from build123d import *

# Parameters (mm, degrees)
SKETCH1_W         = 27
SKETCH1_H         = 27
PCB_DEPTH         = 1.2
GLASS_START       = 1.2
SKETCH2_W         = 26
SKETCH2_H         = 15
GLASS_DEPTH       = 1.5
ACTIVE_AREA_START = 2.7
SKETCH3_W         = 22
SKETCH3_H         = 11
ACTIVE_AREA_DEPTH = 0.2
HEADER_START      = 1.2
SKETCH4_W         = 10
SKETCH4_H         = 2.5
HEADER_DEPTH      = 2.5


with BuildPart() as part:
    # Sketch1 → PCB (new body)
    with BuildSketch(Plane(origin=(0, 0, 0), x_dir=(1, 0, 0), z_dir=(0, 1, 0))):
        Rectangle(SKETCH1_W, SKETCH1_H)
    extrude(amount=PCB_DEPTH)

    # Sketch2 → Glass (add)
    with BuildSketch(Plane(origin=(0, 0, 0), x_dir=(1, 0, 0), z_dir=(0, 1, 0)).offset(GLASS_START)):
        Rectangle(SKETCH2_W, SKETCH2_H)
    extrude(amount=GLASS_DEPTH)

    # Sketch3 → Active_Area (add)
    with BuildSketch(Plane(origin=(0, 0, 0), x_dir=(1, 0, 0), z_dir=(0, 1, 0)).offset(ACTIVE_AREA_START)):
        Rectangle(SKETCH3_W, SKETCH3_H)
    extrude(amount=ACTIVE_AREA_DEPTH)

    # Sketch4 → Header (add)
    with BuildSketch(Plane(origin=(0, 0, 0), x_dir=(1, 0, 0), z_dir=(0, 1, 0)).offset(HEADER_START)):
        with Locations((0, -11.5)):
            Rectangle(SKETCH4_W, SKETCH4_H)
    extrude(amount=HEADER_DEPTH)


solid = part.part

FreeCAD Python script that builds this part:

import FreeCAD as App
import Part
import Sketcher

V = App.Vector
Q = App.Units.Quantity

doc = App.newDocument("Part")
body = doc.addObject("PartDesign::Body", "Body")

sketch1 = body.newObject("Sketcher::SketchObject", "Sketch")
sketch1.AttachmentSupport = (doc.getObject("XZ_Plane"), [""])
sketch1.MapMode = "FlatFace"
sketch1.addGeometry(Part.LineSegment(V(-14, -14, 0), V(-14, 14, 0)), False)
sketch1.addGeometry(Part.LineSegment(V(-14, 14, 0), V(14, 14, 0)), False)
sketch1.addGeometry(Part.LineSegment(V(14, 14, 0), V(14, -14, 0)), False)
sketch1.addGeometry(Part.LineSegment(V(14, -14, 0), V(-14, -14, 0)), False)
sketch1.addConstraint(Sketcher.Constraint("Coincident", 0, 2, 1, 1))
sketch1.addConstraint(Sketcher.Constraint("Coincident", 1, 2, 2, 1))
sketch1.addConstraint(Sketcher.Constraint("Coincident", 2, 2, 3, 1))
sketch1.addConstraint(Sketcher.Constraint("Coincident", 3, 2, 0, 1))
sketch1.addConstraint(Sketcher.Constraint("Vertical", 0))
sketch1.addConstraint(Sketcher.Constraint("Horizontal", 1))
sketch1.addConstraint(Sketcher.Constraint("Vertical", 2))
sketch1.addConstraint(Sketcher.Constraint("Horizontal", 3))
sketch1.addConstraint(Sketcher.Constraint("Symmetric", 0, 2, 2, 2, -1, 1))
sketch1.addConstraint(Sketcher.Constraint("Equal", 3, 0))
sketch1.addConstraint(Sketcher.Constraint("DistanceX", 1, 1, 1, 2, Q("27 mm")))
pad1 = body.newObject("PartDesign::Pad", "Pad")
pad1.Profile = sketch1
pad1.Length = 1.2
pad1.Reversed = True

sketch2 = body.newObject("Sketcher::SketchObject", "Sketch001")
sketch2.AttachmentSupport = (doc.getObject("XZ_Plane"), [""])
sketch2.MapMode = "FlatFace"
sketch2.AttachmentOffset = App.Placement(V(0, 0, -1.2), App.Rotation())
sketch2.addGeometry(Part.LineSegment(V(-13, -8, 0), V(-13, 8, 0)), False)
sketch2.addGeometry(Part.LineSegment(V(-13, 8, 0), V(13, 8, 0)), False)
sketch2.addGeometry(Part.LineSegment(V(13, 8, 0), V(13, -8, 0)), False)
sketch2.addGeometry(Part.LineSegment(V(13, -8, 0), V(-13, -8, 0)), False)
sketch2.addConstraint(Sketcher.Constraint("Coincident", 0, 2, 1, 1))
sketch2.addConstraint(Sketcher.Constraint("Coincident", 1, 2, 2, 1))
sketch2.addConstraint(Sketcher.Constraint("Coincident", 2, 2, 3, 1))
sketch2.addConstraint(Sketcher.Constraint("Coincident", 3, 2, 0, 1))
sketch2.addConstraint(Sketcher.Constraint("Vertical", 0))
sketch2.addConstraint(Sketcher.Constraint("Horizontal", 1))
sketch2.addConstraint(Sketcher.Constraint("Vertical", 2))
sketch2.addConstraint(Sketcher.Constraint("Horizontal", 3))
sketch2.addConstraint(Sketcher.Constraint("Symmetric", 0, 2, 2, 2, -1, 1))
sketch2.addConstraint(Sketcher.Constraint("DistanceX", 1, 1, 1, 2, Q("26 mm")))
sketch2.addConstraint(Sketcher.Constraint("DistanceY", 0, 1, 0, 2, Q("15 mm")))
pad2 = body.newObject("PartDesign::Pad", "Pad001")
pad2.Profile = sketch2
pad2.Length = 1.5
pad2.Reversed = True

sketch3 = body.newObject("Sketcher::SketchObject", "Sketch002")
sketch3.AttachmentSupport = (doc.getObject("XZ_Plane"), [""])
sketch3.MapMode = "FlatFace"
sketch3.AttachmentOffset = App.Placement(V(0, 0, -2.7), App.Rotation())
sketch3.addGeometry(Part.LineSegment(V(-11, -6, 0), V(-11, 6, 0)), False)
sketch3.addGeometry(Part.LineSegment(V(-11, 6, 0), V(11, 6, 0)), False)
sketch3.addGeometry(Part.LineSegment(V(11, 6, 0), V(11, -6, 0)), False)
sketch3.addGeometry(Part.LineSegment(V(11, -6, 0), V(-11, -6, 0)), False)
sketch3.addConstraint(Sketcher.Constraint("Coincident", 0, 2, 1, 1))
sketch3.addConstraint(Sketcher.Constraint("Coincident", 1, 2, 2, 1))
sketch3.addConstraint(Sketcher.Constraint("Coincident", 2, 2, 3, 1))
sketch3.addConstraint(Sketcher.Constraint("Coincident", 3, 2, 0, 1))
sketch3.addConstraint(Sketcher.Constraint("Vertical", 0))
sketch3.addConstraint(Sketcher.Constraint("Horizontal", 1))
sketch3.addConstraint(Sketcher.Constraint("Vertical", 2))
sketch3.addConstraint(Sketcher.Constraint("Horizontal", 3))
sketch3.addConstraint(Sketcher.Constraint("Symmetric", 0, 2, 2, 2, -1, 1))
sketch3.addConstraint(Sketcher.Constraint("DistanceX", 1, 1, 1, 2, Q("22 mm")))
sketch3.addConstraint(Sketcher.Constraint("DistanceY", 0, 1, 0, 2, Q("11 mm")))
pad3 = body.newObject("PartDesign::Pad", "Pad002")
pad3.Profile = sketch3
pad3.Length = 0.2
pad3.Reversed = True

sketch4 = body.newObject("Sketcher::SketchObject", "Sketch003")
sketch4.AttachmentSupport = (doc.getObject("XZ_Plane"), [""])
sketch4.MapMode = "FlatFace"
sketch4.AttachmentOffset = App.Placement(V(0, 0, -1.2), App.Rotation())
sketch4.addGeometry(Part.LineSegment(V(-5, 10.2, 0), V(-5, 12.8, 0)), False)
sketch4.addGeometry(Part.LineSegment(V(-5, 12.8, 0), V(5, 12.8, 0)), False)
sketch4.addGeometry(Part.LineSegment(V(5, 12.8, 0), V(5, 10.2, 0)), False)
sketch4.addGeometry(Part.LineSegment(V(5, 10.2, 0), V(-5, 10.2, 0)), False)
sketch4.addConstraint(Sketcher.Constraint("Coincident", 0, 2, 1, 1))
sketch4.addConstraint(Sketcher.Constraint("Coincident", 1, 2, 2, 1))
sketch4.addConstraint(Sketcher.Constraint("Coincident", 2, 2, 3, 1))
sketch4.addConstraint(Sketcher.Constraint("Coincident", 3, 2, 0, 1))
sketch4.addConstraint(Sketcher.Constraint("Vertical", 0))
sketch4.addConstraint(Sketcher.Constraint("Horizontal", 1))
sketch4.addConstraint(Sketcher.Constraint("Vertical", 2))
sketch4.addConstraint(Sketcher.Constraint("Horizontal", 3))
sketch4.addConstraint(Sketcher.Constraint("DistanceX", 1, 1, 1, 2, Q("10 mm")))
sketch4.addConstraint(Sketcher.Constraint("DistanceY", 0, 1, 0, 2, Q("2.5 mm")))
sketch4.addConstraint(Sketcher.Constraint("DistanceX", 0, 2, -1, 1, Q("5 mm")))
sketch4.addConstraint(Sketcher.Constraint("DistanceY", -1, 1, 0, 2, Q("12.75 mm")))
pad4 = body.newObject("PartDesign::Pad", "Pad003")
pad4.Profile = sketch4
pad4.Length = 2.5
pad4.Reversed = True

doc.recompute()
